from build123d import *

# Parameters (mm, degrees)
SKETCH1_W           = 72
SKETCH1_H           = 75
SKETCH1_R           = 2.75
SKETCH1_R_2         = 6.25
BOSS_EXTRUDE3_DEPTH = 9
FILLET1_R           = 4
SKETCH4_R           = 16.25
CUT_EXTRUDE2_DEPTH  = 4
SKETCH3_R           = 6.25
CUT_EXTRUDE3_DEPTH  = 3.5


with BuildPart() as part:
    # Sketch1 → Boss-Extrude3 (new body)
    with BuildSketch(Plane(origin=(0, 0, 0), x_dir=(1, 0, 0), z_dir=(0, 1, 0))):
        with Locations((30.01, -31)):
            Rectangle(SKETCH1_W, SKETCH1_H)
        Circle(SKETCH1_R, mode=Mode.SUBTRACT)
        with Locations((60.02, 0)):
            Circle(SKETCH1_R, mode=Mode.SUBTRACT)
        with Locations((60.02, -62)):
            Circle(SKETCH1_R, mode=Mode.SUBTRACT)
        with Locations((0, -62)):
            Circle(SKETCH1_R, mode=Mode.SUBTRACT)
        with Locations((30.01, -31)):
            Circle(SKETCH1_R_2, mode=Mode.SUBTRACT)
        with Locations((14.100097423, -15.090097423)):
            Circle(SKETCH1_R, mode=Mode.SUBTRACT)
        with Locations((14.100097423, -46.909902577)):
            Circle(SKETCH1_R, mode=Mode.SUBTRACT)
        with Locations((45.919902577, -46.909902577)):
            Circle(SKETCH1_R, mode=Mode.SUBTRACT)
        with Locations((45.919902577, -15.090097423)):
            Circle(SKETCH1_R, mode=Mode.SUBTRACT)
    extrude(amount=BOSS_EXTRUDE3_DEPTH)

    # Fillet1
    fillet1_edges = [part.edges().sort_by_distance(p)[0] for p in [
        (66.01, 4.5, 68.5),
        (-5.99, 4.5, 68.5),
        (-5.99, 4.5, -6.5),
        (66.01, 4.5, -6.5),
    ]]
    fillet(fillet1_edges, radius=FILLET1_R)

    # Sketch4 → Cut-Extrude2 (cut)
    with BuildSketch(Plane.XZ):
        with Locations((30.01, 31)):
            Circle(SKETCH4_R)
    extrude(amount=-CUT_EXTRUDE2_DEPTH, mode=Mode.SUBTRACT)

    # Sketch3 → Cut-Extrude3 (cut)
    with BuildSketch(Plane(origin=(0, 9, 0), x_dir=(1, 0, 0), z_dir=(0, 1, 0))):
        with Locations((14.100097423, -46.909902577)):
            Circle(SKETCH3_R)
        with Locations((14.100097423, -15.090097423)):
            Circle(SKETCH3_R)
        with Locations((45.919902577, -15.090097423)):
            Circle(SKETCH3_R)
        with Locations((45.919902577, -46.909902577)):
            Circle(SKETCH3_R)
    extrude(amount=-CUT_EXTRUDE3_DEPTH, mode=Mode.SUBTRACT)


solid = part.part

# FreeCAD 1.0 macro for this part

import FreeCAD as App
import Part
import Sketcher
from FreeCAD import Vector
Q = App.Units.Quantity


def edges_at(feature, points):
    """Names of the edges that pass closest to the given points."""
    edges = feature.Shape.Edges
    near = lambda p: min(range(len(edges)), key=lambda i: edges[i].distToShape(Part.Vertex(*p))[0])
    return sorted({f"Edge{near(p) + 1}" for p in points})

doc = App.newDocument("Part")
body = doc.addObject("PartDesign::Body", "Body")

# Sketch on XZ plane
sketch1 = body.newObject("Sketcher::SketchObject", "Sketch")
sketch1.AttachmentSupport = (doc.getObject("XZ_Plane"), [""])
sketch1.MapMode = "FlatFace"
sketch1.addGeometry(Part.LineSegment(Vector(-6, -6.5, 0), Vector(-6, 68.5, 0)), False)
sketch1.addGeometry(Part.LineSegment(Vector(-6, 68.5, 0), Vector(66, 68.5, 0)), False)
sketch1.addGeometry(Part.LineSegment(Vector(66, 68.5, 0), Vector(66, -6.5, 0)), False)
sketch1.addGeometry(Part.LineSegment(Vector(66, -6.5, 0), Vector(-6, -6.5, 0)), False)
sketch1.addGeometry(Part.Circle(Vector(0, 62, 0), Vector(0, 0, 1), 2.8), False)
sketch1.addGeometry(Part.Circle(Vector(14.1, 46.9, 0), Vector(0, 0, 1), 2.8), False)
sketch1.addGeometry(Part.Circle(Vector(60, 62, 0), Vector(0, 0, 1), 2.8), False)
sketch1.addGeometry(Part.Circle(Vector(45.9, 46.9, 0), Vector(0, 0, 1), 2.8), False)
sketch1.addGeometry(Part.Circle(Vector(14.1, 15.1, 0), Vector(0, 0, 1), 2.8), False)
sketch1.addGeometry(Part.Circle(Vector(0, 0, 0), Vector(0, 0, 1), 2.8), False)
sketch1.addGeometry(Part.Circle(Vector(30, 31, 0), Vector(0, 0, 1), 6.2), False)
sketch1.addGeometry(Part.Circle(Vector(45.9, 15.1, 0), Vector(0, 0, 1), 2.8), False)
sketch1.addGeometry(Part.Circle(Vector(60, 0, 0), Vector(0, 0, 1), 2.8), False)
sketch1.addConstraint(Sketcher.Constraint("Coincident", 0, 2, 1, 1))
sketch1.addConstraint(Sketcher.Constraint("Coincident", 1, 2, 2, 1))
sketch1.addConstraint(Sketcher.Constraint("Coincident", 2, 2, 3, 1))
sketch1.addConstraint(Sketcher.Constraint("Coincident", 3, 2, 0, 1))
sketch1.addConstraint(Sketcher.Constraint("Vertical", 0))
sketch1.addConstraint(Sketcher.Constraint("Horizontal", 1))
sketch1.addConstraint(Sketcher.Constraint("Vertical", 2))
sketch1.addConstraint(Sketcher.Constraint("Horizontal", 3))
sketch1.addConstraint(Sketcher.Constraint("Coincident", 9, 3, -1, 1))
sketch1.addConstraint(Sketcher.Constraint("Equal", 4, 5))
sketch1.addConstraint(Sketcher.Constraint("Equal", 5, 6))
sketch1.addConstraint(Sketcher.Constraint("Equal", 6, 7))
sketch1.addConstraint(Sketcher.Constraint("Equal", 7, 8))
sketch1.addConstraint(Sketcher.Constraint("Equal", 8, 9))
sketch1.addConstraint(Sketcher.Constraint("Equal", 9, 11))
sketch1.addConstraint(Sketcher.Constraint("Equal", 11, 12))
sketch1.addConstraint(Sketcher.Constraint("PointOnObject", 4, 3, -2))
sketch1.addConstraint(Sketcher.Constraint("PointOnObject", 12, 3, -1))
sketch1.addConstraint(Sketcher.Constraint("Horizontal", 4, 3, 6, 3))
sketch1.addConstraint(Sketcher.Constraint("Horizontal", 5, 3, 7, 3))
sketch1.addConstraint(Sketcher.Constraint("Horizontal", 8, 3, 11, 3))
sketch1.addConstraint(Sketcher.Constraint("Vertical", 5, 3, 8, 3))
sketch1.addConstraint(Sketcher.Constraint("Vertical", 7, 3, 11, 3))
sketch1.addConstraint(Sketcher.Constraint("Vertical", 6, 3, 12, 3))
sketch1.addConstraint(Sketcher.Constraint("Diameter", 4, Q("5.5 mm")))
sketch1.addConstraint(Sketcher.Constraint("Diameter", 10, Q("12.5 mm")))
sketch1.addConstraint(Sketcher.Constraint("DistanceX", 1, 1, 1, 2, Q("72 mm")))
sketch1.addConstraint(Sketcher.Constraint("DistanceY", 0, 1, 0, 2, Q("75 mm")))
sketch1.addConstraint(Sketcher.Constraint("DistanceY", -1, 1, 4, 3, Q("62 mm")))
sketch1.addConstraint(Sketcher.Constraint("DistanceY", -1, 1, 10, 3, Q("31 mm")))
sketch1.addConstraint(Sketcher.Constraint("DistanceX", 0, 2, 10, 3, Q("36 mm")))
sketch1.addConstraint(Sketcher.Constraint("DistanceY", -1, 1, 0, 2, Q("68.5 mm")))
sketch1.addConstraint(Sketcher.Constraint("DistanceX", -1, 1, 6, 3, Q("60.02 mm")))
sketch1.addConstraint(Sketcher.Constraint("DistanceX", -1, 1, 10, 3, Q("30.01 mm")))
sketch1.addConstraint(Sketcher.Constraint("DistanceX", -1, 1, 5, 3, Q("14.100097 mm")))
sketch1.addConstraint(Sketcher.Constraint("DistanceY", -1, 1, 5, 3, Q("46.909903 mm")))
sketch1.addConstraint(Sketcher.Constraint("DistanceX", -1, 1, 7, 3, Q("45.919903 mm")))
sketch1.addConstraint(Sketcher.Constraint("DistanceY", -1, 1, 8, 3, Q("15.090097 mm")))
pad1 = body.newObject("PartDesign::Pad", "Pad")
pad1.Profile = sketch1
pad1.Length = 9
pad1.Reversed = True
doc.recompute()

fillet = body.newObject("PartDesign::Fillet", "Fillet")
fillet.Base = (pad1, edges_at(pad1, [
    (66.01, 4.5, 68.5),
    (-5.99, 4.5, 68.5),
    (-5.99, 4.5, -6.5),
    (66.01, 4.5, -6.5),
]))
fillet.Radius = 4

# Sketch on XZ plane
sketch2 = body.newObject("Sketcher::SketchObject", "Sketch001")
sketch2.AttachmentSupport = (doc.getObject("XZ_Plane"), [""])
sketch2.MapMode = "FlatFace"
sketch2.addGeometry(Part.Circle(Vector(30, 31, 0), Vector(0, 0, 1), 16), False)
sketch2.addConstraint(Sketcher.Constraint("Diameter", 0, Q("32.5 mm")))
sketch2.addConstraint(Sketcher.Constraint("DistanceY", -1, 1, 0, 3, Q("31 mm")))
sketch2.addConstraint(Sketcher.Constraint("DistanceX", -1, 1, 0, 3, Q("30.01 mm")))
pocket1 = body.newObject("PartDesign::Pocket", "Pocket")
pocket1.Profile = sketch2
pocket1.Length = 4

# Sketch on XZ plane
sketch3 = body.newObject("Sketcher::SketchObject", "Sketch002")
sketch3.AttachmentSupport = (doc.getObject("XZ_Plane"), [""])
sketch3.MapMode = "FlatFace"
sketch3.AttachmentOffset = App.Placement(Vector(0, 0, -9), App.Rotation())
sketch3.addGeometry(Part.Circle(Vector(14, 47, 0), Vector(0, 0, 1), 6), False)
sketch3.addGeometry(Part.Circle(Vector(14, 15, 0), Vector(0, 0, 1), 6), False)
sketch3.addGeometry(Part.Circle(Vector(46, 15, 0), Vector(0, 0, 1), 6), False)
sketch3.addGeometry(Part.Circle(Vector(46, 47, 0), Vector(0, 0, 1), 6), False)
sketch3.addConstraint(Sketcher.Constraint("Equal", 0, 1))
sketch3.addConstraint(Sketcher.Constraint("Equal", 1, 2))
sketch3.addConstraint(Sketcher.Constraint("Equal", 2, 3))
sketch3.addConstraint(Sketcher.Constraint("Horizontal", 1, 3, 2, 3))
sketch3.addConstraint(Sketcher.Constraint("Horizontal", 0, 3, 3, 3))
sketch3.addConstraint(Sketcher.Constraint("Vertical", 0, 3, 1, 3))
sketch3.addConstraint(Sketcher.Constraint("Vertical", 2, 3, 3, 3))
sketch3.addConstraint(Sketcher.Constraint("Diameter", 0, Q("12.5 mm")))
sketch3.addConstraint(Sketcher.Constraint("DistanceX", -1, 1, 0, 3, Q("14.100097 mm")))
sketch3.addConstraint(Sketcher.Constraint("DistanceY", -1, 1, 0, 3, Q("46.909903 mm")))
sketch3.addConstraint(Sketcher.Constraint("DistanceY", -1, 1, 1, 3, Q("15.090097 mm")))
sketch3.addConstraint(Sketcher.Constraint("DistanceX", -1, 1, 2, 3, Q("45.919903 mm")))
pocket2 = body.newObject("PartDesign::Pocket", "Pocket001")
pocket2.Profile = sketch3
pocket2.Length = 3.5
pocket2.Reversed = True

doc.recompute()
